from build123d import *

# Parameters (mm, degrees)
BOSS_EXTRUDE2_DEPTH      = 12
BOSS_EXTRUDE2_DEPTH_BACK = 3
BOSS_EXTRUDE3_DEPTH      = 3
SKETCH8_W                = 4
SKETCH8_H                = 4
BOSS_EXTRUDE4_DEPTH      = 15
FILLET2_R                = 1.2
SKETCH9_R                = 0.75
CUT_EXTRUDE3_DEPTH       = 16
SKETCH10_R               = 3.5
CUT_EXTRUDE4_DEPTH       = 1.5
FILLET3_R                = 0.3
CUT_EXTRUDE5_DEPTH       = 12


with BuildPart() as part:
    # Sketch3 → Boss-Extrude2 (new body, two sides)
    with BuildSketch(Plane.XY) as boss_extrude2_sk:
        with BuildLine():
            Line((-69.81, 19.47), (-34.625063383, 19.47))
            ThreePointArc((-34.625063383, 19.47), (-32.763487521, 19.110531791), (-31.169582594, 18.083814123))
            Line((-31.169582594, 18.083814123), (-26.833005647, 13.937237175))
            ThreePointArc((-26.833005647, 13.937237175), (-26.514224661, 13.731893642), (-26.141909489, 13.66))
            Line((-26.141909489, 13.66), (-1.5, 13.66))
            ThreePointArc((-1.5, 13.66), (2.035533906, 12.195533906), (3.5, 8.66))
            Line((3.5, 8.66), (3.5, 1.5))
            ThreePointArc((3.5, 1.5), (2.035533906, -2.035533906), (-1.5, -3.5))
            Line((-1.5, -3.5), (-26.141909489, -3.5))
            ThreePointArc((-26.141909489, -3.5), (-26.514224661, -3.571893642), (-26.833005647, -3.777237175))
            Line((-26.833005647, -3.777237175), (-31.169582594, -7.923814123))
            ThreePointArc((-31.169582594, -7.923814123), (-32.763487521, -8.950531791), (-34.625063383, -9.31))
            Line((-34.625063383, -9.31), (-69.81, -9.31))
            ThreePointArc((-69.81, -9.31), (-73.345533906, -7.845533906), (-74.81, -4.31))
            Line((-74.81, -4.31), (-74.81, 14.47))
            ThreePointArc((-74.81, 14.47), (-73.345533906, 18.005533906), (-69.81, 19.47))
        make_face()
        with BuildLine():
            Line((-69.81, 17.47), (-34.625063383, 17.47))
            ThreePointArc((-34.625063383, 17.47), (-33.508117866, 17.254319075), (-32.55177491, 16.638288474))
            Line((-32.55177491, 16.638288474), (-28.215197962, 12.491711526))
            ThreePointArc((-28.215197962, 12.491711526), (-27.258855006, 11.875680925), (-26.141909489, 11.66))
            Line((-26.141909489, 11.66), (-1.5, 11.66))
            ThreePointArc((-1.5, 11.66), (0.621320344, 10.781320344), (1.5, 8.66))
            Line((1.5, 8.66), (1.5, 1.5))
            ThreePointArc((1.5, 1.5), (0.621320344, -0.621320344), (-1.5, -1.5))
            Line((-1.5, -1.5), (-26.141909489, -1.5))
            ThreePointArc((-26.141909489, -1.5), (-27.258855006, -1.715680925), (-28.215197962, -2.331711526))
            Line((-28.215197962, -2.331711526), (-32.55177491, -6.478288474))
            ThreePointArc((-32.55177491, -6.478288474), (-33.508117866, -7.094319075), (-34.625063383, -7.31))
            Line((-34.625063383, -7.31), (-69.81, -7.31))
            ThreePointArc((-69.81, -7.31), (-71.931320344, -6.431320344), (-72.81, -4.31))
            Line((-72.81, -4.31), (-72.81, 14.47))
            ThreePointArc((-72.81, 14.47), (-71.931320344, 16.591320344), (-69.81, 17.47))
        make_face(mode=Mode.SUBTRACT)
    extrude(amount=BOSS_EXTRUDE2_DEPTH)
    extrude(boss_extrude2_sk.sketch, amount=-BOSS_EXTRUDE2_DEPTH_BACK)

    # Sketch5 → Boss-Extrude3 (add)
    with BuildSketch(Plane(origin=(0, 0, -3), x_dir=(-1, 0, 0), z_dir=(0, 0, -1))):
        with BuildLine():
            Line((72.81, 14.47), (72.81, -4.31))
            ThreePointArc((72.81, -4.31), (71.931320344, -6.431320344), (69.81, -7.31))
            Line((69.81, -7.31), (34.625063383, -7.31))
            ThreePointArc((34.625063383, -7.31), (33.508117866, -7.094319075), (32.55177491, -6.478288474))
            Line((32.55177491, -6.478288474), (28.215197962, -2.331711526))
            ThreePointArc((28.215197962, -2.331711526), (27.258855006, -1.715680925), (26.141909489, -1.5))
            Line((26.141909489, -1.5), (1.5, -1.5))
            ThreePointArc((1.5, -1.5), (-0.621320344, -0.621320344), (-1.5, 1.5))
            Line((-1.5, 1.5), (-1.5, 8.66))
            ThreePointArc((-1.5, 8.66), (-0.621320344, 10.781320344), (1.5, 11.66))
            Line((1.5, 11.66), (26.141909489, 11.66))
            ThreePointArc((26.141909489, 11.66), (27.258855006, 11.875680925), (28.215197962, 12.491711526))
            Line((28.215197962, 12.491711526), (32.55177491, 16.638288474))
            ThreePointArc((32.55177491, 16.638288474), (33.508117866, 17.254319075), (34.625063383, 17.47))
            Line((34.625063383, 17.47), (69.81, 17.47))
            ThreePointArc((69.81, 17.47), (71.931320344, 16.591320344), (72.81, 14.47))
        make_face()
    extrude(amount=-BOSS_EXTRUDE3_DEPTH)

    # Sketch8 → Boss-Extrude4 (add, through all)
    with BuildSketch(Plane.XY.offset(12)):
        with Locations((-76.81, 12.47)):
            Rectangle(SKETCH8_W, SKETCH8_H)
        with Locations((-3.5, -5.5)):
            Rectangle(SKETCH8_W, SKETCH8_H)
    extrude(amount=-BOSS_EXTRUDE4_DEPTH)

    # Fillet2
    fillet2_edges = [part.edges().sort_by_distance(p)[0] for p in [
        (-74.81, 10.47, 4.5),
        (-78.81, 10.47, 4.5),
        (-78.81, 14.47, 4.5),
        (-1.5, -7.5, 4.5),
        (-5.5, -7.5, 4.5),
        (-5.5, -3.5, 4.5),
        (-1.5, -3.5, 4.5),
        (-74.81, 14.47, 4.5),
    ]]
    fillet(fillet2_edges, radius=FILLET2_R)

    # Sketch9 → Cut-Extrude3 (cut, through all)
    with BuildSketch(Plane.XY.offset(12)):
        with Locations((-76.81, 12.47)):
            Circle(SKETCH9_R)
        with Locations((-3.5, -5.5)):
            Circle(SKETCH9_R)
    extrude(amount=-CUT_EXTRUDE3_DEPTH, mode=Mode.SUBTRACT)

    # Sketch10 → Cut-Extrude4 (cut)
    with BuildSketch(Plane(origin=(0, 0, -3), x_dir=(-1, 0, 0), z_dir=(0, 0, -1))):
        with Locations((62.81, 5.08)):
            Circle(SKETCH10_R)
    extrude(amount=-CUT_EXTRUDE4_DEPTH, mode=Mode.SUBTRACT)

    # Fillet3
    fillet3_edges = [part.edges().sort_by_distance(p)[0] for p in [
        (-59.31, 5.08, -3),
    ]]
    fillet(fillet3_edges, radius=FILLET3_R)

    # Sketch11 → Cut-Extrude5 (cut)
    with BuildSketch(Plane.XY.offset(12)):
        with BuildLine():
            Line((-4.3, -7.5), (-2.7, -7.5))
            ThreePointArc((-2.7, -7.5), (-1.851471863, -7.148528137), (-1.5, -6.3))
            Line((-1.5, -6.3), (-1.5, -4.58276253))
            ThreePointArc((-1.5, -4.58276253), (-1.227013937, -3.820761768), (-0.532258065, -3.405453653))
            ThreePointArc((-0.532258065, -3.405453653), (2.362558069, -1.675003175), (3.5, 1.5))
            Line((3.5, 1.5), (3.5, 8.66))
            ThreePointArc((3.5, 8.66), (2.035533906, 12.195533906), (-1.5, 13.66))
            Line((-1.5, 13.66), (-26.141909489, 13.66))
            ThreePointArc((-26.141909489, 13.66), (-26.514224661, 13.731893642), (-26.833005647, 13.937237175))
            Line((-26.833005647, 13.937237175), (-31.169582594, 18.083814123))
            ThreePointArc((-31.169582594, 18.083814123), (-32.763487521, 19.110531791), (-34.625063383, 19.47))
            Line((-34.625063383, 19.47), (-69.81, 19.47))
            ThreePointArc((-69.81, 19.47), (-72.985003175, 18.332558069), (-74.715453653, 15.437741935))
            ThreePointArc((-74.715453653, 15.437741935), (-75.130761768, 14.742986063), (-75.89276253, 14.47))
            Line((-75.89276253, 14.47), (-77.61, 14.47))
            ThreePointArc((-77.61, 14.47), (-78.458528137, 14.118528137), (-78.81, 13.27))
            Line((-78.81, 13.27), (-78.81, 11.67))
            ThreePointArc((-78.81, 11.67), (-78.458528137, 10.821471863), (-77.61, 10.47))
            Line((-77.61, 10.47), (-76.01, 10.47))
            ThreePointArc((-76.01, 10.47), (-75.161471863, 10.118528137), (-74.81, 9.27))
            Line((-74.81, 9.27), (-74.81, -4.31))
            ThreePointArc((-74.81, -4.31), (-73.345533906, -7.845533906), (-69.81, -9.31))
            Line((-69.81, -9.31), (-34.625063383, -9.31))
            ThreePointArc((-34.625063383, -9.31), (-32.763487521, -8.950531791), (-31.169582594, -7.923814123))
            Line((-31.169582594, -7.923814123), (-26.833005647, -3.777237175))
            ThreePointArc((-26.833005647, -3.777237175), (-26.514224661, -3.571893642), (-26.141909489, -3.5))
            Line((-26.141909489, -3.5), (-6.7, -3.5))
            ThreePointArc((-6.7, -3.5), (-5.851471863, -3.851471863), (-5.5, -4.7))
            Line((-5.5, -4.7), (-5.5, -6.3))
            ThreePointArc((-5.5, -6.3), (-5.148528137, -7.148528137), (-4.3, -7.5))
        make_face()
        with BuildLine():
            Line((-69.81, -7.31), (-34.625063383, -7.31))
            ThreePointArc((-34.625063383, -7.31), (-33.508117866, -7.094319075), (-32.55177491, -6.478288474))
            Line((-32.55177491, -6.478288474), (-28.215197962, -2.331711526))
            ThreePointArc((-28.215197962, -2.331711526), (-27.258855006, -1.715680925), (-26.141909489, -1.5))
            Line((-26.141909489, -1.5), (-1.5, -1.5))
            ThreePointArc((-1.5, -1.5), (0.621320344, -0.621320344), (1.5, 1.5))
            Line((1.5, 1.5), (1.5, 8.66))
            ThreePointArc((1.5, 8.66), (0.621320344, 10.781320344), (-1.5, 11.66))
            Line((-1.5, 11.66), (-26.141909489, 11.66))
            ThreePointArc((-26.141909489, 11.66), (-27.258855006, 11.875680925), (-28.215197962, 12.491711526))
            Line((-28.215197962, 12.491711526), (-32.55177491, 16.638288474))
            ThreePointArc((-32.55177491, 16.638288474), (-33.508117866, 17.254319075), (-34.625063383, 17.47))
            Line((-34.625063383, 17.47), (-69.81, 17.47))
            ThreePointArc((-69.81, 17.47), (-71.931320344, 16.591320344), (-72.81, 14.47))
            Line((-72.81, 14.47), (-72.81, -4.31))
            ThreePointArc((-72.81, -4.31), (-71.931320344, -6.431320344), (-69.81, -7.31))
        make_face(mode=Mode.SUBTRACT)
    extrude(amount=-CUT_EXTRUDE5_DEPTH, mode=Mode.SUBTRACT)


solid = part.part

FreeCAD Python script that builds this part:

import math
import FreeCAD as App
import Part
import Sketcher

V = App.Vector


def edges_at(feature, points):
    """Names of the edges that pass closest to the given points."""
    edges = feature.Shape.Edges
    near = lambda p: min(range(len(edges)), key=lambda i: edges[i].distToShape(Part.Vertex(*p))[0])
    return sorted({f"Edge{near(p) + 1}" for p in points})


def add_polygon(sketch, points):
    """Adds a closed chain of lines whose ends are joined by coincident constraints."""
    first, n = sketch.GeometryCount, len(points)
    for a, b in zip(points, points[1:] + points[:1]):
        sketch.addGeometry(Part.LineSegment(App.Vector(*a, 0), App.Vector(*b, 0)), False)
    for i in range(n):
        sketch.addConstraint(Sketcher.Constraint("Coincident", first + i, 2, first + (i + 1) % n, 1))

doc = App.newDocument("Part")
params = doc.addObject("Spreadsheet::Sheet", "Params")
for row, (alias, value) in enumerate([
    ("sketch1_radius", "5 mm"),
    ("sketch1_radius2", "1 mm"),
    ("sketch1_length", "6 mm"),
    ("sketch1_height", "18.78 mm"),
    ("sketch1_height2", "7.16 mm"),
    ("pad1_length", "12 mm"),
    ("pad1_length2", "3 mm"),
    ("sketch2_radius", "3 mm"),
    ("sketch2_length", "6 mm"),
    ("sketch2_height", "18.78 mm"),
    ("sketch2_height2", "7.16 mm"),
    ("pad2_length", "3 mm"),
    ("sketch3_width", "4 mm"),
    ("fillet_radius", "1.2 mm"),
    ("sketch4_diameter", "1.5 mm"),
    ("sketch5_diameter", "7 mm"),
    ("pocket2_length", "1.5 mm"),
    ("fillet2_radius", "0.3 mm"),
    ("sketch6_radius", "5 mm"),
    ("sketch6_radius2", "1 mm"),
    ("sketch6_radius3", "1.2 mm"),
    ("sketch6_length", "6 mm"),
    ("sketch6_width", "1.6 mm"),
    ("pocket3_length", "12 mm"),
], start=1):
    params.set(f"A{row}", alias)
    params.set(f"B{row}", "=" + value)
    params.setAlias(f"B{row}", alias)

body = doc.addObject("PartDesign::Body", "Body")

# Sketch on XY plane
sketch1 = body.newObject("Sketcher::SketchObject", "Sketch")
sketch1.AttachmentSupport = (doc.getObject("XY_Plane"), [""])
sketch1.MapMode = "FlatFace"
sketch1.addGeometry([
    Part.LineSegment(V(-34.6, 19.5, 0), V(-69.8, 19.5, 0)),  # 0
    Part.ArcOfCircle(Part.Circle(V(-69.8, 14.5, 0), V(0, 0, 1), 5), math.radians(90), math.radians(180)),  # 1
    Part.LineSegment(V(-74.8, 14.5, 0), V(-74.8, -4.3, 0)),  # 2
    Part.ArcOfCircle(Part.Circle(V(-69.8, -4.3, 0), V(0, 0, 1), 5), math.radians(180), math.radians(270)),  # 3
    Part.LineSegment(V(-69.8, -9.3, 0), V(-34.6, -9.3, 0)),  # 4
    Part.ArcOfCircle(Part.Circle(V(-34.6, -4.3, 0), V(0, 0, 1), 5), math.radians(-90), math.radians(-46)),  # 5
    Part.LineSegment(V(-31.2, -7.9, 0), V(-26.8, -3.8, 0)),  # 6
    Part.ArcOfCircle(Part.Circle(V(-26.1, -4.5, 0), V(0, 0, 1), 1), math.radians(90), math.radians(134)),  # 7
    Part.LineSegment(V(-26.1, -3.5, 0), V(-1.5, -3.5, 0)),  # 8
    Part.ArcOfCircle(Part.Circle(V(-1.5, 1.5, 0), V(0, 0, 1), 5), math.radians(-90), math.radians(0)),  # 9
    Part.LineSegment(V(3.5, 1.5, 0), V(3.5, 8.7, 0)),  # 10
    Part.ArcOfCircle(Part.Circle(V(-1.5, 8.7, 0), V(0, 0, 1), 5), math.radians(0), math.radians(90)),  # 11
    Part.LineSegment(V(-1.5, 13.7, 0), V(-26.1, 13.7, 0)),  # 12
    Part.ArcOfCircle(Part.Circle(V(-26.1, 14.7, 0), V(0, 0, 1), 1), math.radians(-134), math.radians(-90)),  # 13
    Part.LineSegment(V(-26.8, 13.9, 0), V(-31.2, 18.1, 0)),  # 14
    Part.ArcOfCircle(Part.Circle(V(-34.6, 14.5, 0), V(0, 0, 1), 5), math.radians(46), math.radians(90)),  # 15
    Part.LineSegment(V(-69.8, 17.5, 0), V(-34.6, 17.5, 0)),  # 16
    Part.ArcOfCircle(Part.Circle(V(-34.6, 14.5, 0), V(0, 0, 1), 3), math.radians(46), math.radians(90)),  # 17
    Part.LineSegment(V(-32.6, 16.6, 0), V(-28.2, 12.5, 0)),  # 18
    Part.ArcOfCircle(Part.Circle(V(-26.1, 14.7, 0), V(0, 0, 1), 3), math.radians(-134), math.radians(-90)),  # 19
    Part.LineSegment(V(-26.1, 11.7, 0), V(-1.5, 11.7, 0)),  # 20
    Part.ArcOfCircle(Part.Circle(V(-1.5, 8.7, 0), V(0, 0, 1), 3), math.radians(0), math.radians(90)),  # 21
    Part.LineSegment(V(1.5, 8.7, 0), V(1.5, 1.5, 0)),  # 22
    Part.ArcOfCircle(Part.Circle(V(-1.5, 1.5, 0), V(0, 0, 1), 3), math.radians(-90), math.radians(0)),  # 23
    Part.LineSegment(V(-1.5, -1.5, 0), V(-26.1, -1.5, 0)),  # 24
    Part.ArcOfCircle(Part.Circle(V(-26.1, -4.5, 0), V(0, 0, 1), 3), math.radians(90), math.radians(134)),  # 25
    Part.LineSegment(V(-28.2, -2.3, 0), V(-32.6, -6.5, 0)),  # 26
    Part.ArcOfCircle(Part.Circle(V(-34.6, -4.3, 0), V(0, 0, 1), 3), math.radians(-90), math.radians(-46)),  # 27
    Part.LineSegment(V(-34.6, -7.3, 0), V(-69.8, -7.3, 0)),  # 28
    Part.ArcOfCircle(Part.Circle(V(-69.8, -4.3, 0), V(0, 0, 1), 3), math.radians(180), math.radians(270)),  # 29
    Part.LineSegment(V(-72.8, -4.3, 0), V(-72.8, 14.5, 0)),  # 30
    Part.ArcOfCircle(Part.Circle(V(-69.8, 14.5, 0), V(0, 0, 1), 3), math.radians(90), math.radians(180)),  # 31
], False)
sketch1.addConstraint([
    Sketcher.Constraint("Tangent", 0, 2, 1, 1),
    Sketcher.Constraint("Tangent", 1, 2, 2, 1),
    Sketcher.Constraint("Tangent", 2, 2, 3, 1),
    Sketcher.Constraint("Tangent", 3, 2, 4, 1),
    Sketcher.Constraint("Tangent", 4, 2, 5, 1),
    Sketcher.Constraint("Tangent", 5, 2, 6, 1),
    Sketcher.Constraint("Tangent", 6, 2, 7, 2),
    Sketcher.Constraint("Tangent", 7, 1, 8, 1),
    Sketcher.Constraint("Tangent", 8, 2, 9, 1),
    Sketcher.Constraint("Tangent", 9, 2, 10, 1),
    Sketcher.Constraint("Tangent", 10, 2, 11, 1),
    Sketcher.Constraint("Tangent", 11, 2, 12, 1),
    Sketcher.Constraint("Tangent", 12, 2, 13, 2),
    Sketcher.Constraint("Tangent", 13, 1, 14, 1),
    Sketcher.Constraint("Tangent", 14, 2, 15, 1),
    Sketcher.Constraint("Tangent", 15, 2, 0, 1),
    Sketcher.Constraint("Tangent", 16, 2, 17, 2),
    Sketcher.Constraint("Tangent", 17, 1, 18, 1),
    Sketcher.Constraint("Tangent", 18, 2, 19, 1),
    Sketcher.Constraint("Tangent", 19, 2, 20, 1),
    Sketcher.Constraint("Tangent", 20, 2, 21, 2),
    Sketcher.Constraint("Tangent", 21, 1, 22, 1),
    Sketcher.Constraint("Tangent", 22, 2, 23, 2),
    Sketcher.Constraint("Tangent", 23, 1, 24, 1),
    Sketcher.Constraint("Tangent", 24, 2, 25, 1),
    Sketcher.Constraint("Tangent", 25, 2, 26, 1),
    Sketcher.Constraint("Tangent", 26, 2, 27, 2),
    Sketcher.Constraint("Tangent", 27, 1, 28, 1),
    Sketcher.Constraint("Tangent", 28, 2, 29, 2),
    Sketcher.Constraint("Tangent", 29, 1, 30, 1),
    Sketcher.Constraint("Tangent", 30, 2, 31, 2),
    Sketcher.Constraint("Tangent", 31, 1, 16, 1),
    Sketcher.Constraint("Horizontal", 0),
    Sketcher.Constraint("Vertical", 2),
    Sketcher.Constraint("Horizontal", 4),
    Sketcher.Constraint("Horizontal", 8),
    Sketcher.Constraint("Vertical", 10),
    Sketcher.Constraint("Horizontal", 12),
    Sketcher.Constraint("Horizontal", 16),
    Sketcher.Constraint("Horizontal", 20),
    Sketcher.Constraint("Vertical", 22),
    Sketcher.Constraint("Horizontal", 24),
    Sketcher.Constraint("Horizontal", 28),
    Sketcher.Constraint("Vertical", 30),
    Sketcher.Constraint("Coincident", 17, 3, 15, 3),
    Sketcher.Constraint("Coincident", 19, 3, 13, 3),
    Sketcher.Constraint("Coincident", 21, 3, 11, 3),
    Sketcher.Constraint("Coincident", 23, 3, 9, 3),
    Sketcher.Constraint("Coincident", 25, 3, 7, 3),
    Sketcher.Constraint("Coincident", 27, 3, 5, 3),
    Sketcher.Constraint("Coincident", 29, 3, 3, 3),
    Sketcher.Constraint("Coincident", 31, 3, 1, 3),
    Sketcher.Constraint("Equal", 1, 3),
    Sketcher.Constraint("Equal", 3, 5),
    Sketcher.Constraint("Equal", 5, 9),
    Sketcher.Constraint("Equal", 9, 11),
    Sketcher.Constraint("Equal", 7, 13),
    Sketcher.Constraint("Equal", 11, 15),
    Sketcher.Constraint("Equal", 17, 19),
    Sketcher.Constraint("Equal", 19, 21),
    Sketcher.Constraint("Symmetric", 22, 2, 23, 1, -1, 1),
    Sketcher.Constraint("Vertical", 7, 3, 13, 3),
    Sketcher.Constraint("Vertical", 5, 3, 15, 3),
    Sketcher.Constraint("Vertical", 6, 2, 13, 1),
    Sketcher.Constraint("Radius", 1, 5.0),
    Sketcher.Constraint("Radius", 7, 1.0),
    Sketcher.Constraint("Distance", 6, 6.0),
    Sketcher.Constraint("DistanceY", 2, 2, 2, 1, 18.78),
    Sketcher.Constraint("DistanceY", 10, 1, 10, 2, 7.16),
    Sketcher.Constraint("DistanceX", 1, 3, -1, 1, 69.81),
    Sketcher.Constraint("DistanceX", 8, 1, 8, 2, 24.641909),
])
sketch1.setExpression("Constraints[64]", "Params.sketch1_radius")
sketch1.setExpression("Constraints[65]", "Params.sketch1_radius2")
sketch1.setExpression("Constraints[66]", "Params.sketch1_length")
sketch1.setExpression("Constraints[67]", "Params.sketch1_height")
sketch1.setExpression("Constraints[68]", "Params.sketch1_height2")
pad1 = body.newObject("PartDesign::Pad", "Pad")
pad1.Profile = sketch1
pad1.Type = "TwoLengths"
pad1.setExpression("Length", "Params.pad1_length")
pad1.setExpression("Length2", "Params.pad1_length2")

# Sketch on XY plane
sketch2 = body.newObject("Sketcher::SketchObject", "Sketch001")
sketch2.AttachmentSupport = (doc.getObject("XY_Plane"), [""])
sketch2.MapMode = "FlatFace"
sketch2.AttachmentOffset = App.Placement(V(0, 0, -3), App.Rotation())
sketch2.addGeometry([
    Part.LineSegment(V(-72.8, -4.3, 0), V(-72.8, 14.5, 0)),  # 0
    Part.ArcOfCircle(Part.Circle(V(-69.8, 14.5, 0), V(0, 0, 1), 3), math.radians(90), math.radians(180)),  # 1
    Part.LineSegment(V(-69.8, 17.5, 0), V(-34.6, 17.5, 0)),  # 2
    Part.ArcOfCircle(Part.Circle(V(-34.6, 14.5, 0), V(0, 0, 1), 3), math.radians(46), math.radians(90)),  # 3
    Part.LineSegment(V(-32.6, 16.6, 0), V(-28.2, 12.5, 0)),  # 4
    Part.ArcOfCircle(Part.Circle(V(-26.1, 14.7, 0), V(0, 0, 1), 3), math.radians(-134), math.radians(-90)),  # 5
    Part.LineSegment(V(-26.1, 11.7, 0), V(-1.5, 11.7, 0)),  # 6
    Part.ArcOfCircle(Part.Circle(V(-1.5, 8.7, 0), V(0, 0, 1), 3), math.radians(0), math.radians(90)),  # 7
    Part.LineSegment(V(1.5, 8.7, 0), V(1.5, 1.5, 0)),  # 8
    Part.ArcOfCircle(Part.Circle(V(-1.5, 1.5, 0), V(0, 0, 1), 3), math.radians(-90), math.radians(0)),  # 9
    Part.LineSegment(V(-1.5, -1.5, 0), V(-26.1, -1.5, 0)),  # 10
    Part.ArcOfCircle(Part.Circle(V(-26.1, -4.5, 0), V(0, 0, 1), 3), math.radians(90), math.radians(134)),  # 11
    Part.LineSegment(V(-28.2, -2.3, 0), V(-32.6, -6.5, 0)),  # 12
    Part.ArcOfCircle(Part.Circle(V(-34.6, -4.3, 0), V(0, 0, 1), 3), math.radians(-90), math.radians(-46)),  # 13
    Part.LineSegment(V(-34.6, -7.3, 0), V(-69.8, -7.3, 0)),  # 14
    Part.ArcOfCircle(Part.Circle(V(-69.8, -4.3, 0), V(0, 0, 1), 3), math.radians(180), math.radians(270)),  # 15
], False)
sketch2.addConstraint([
    Sketcher.Constraint("Tangent", 0, 2, 1, 2),
    Sketcher.Constraint("Tangent", 1, 1, 2, 1),
    Sketcher.Constraint("Tangent", 2, 2, 3, 2),
    Sketcher.Constraint("Tangent", 3, 1, 4, 1),
    Sketcher.Constraint("Tangent", 4, 2, 5, 1),
    Sketcher.Constraint("Tangent", 5, 2, 6, 1),
    Sketcher.Constraint("Tangent", 6, 2, 7, 2),
    Sketcher.Constraint("Tangent", 7, 1, 8, 1),
    Sketcher.Constraint("Tangent", 8, 2, 9, 2),
    Sketcher.Constraint("Tangent", 9, 1, 10, 1),
    Sketcher.Constraint("Tangent", 10, 2, 11, 1),
    Sketcher.Constraint("Tangent", 11, 2, 12, 1),
    Sketcher.Constraint("Tangent", 12, 2, 13, 2),
    Sketcher.Constraint("Tangent", 13, 1, 14, 1),
    Sketcher.Constraint("Tangent", 14, 2, 15, 2),
    Sketcher.Constraint("Tangent", 15, 1, 0, 1),
    Sketcher.Constraint("Vertical", 0),
    Sketcher.Constraint("Horizontal", 2),
    Sketcher.Constraint("Horizontal", 6),
    Sketcher.Constraint("Vertical", 8),
    Sketcher.Constraint("Horizontal", 10),
    Sketcher.Constraint("Horizontal", 14),
    Sketcher.Constraint("Equal", 1, 3),
    Sketcher.Constraint("Equal", 3, 5),
    Sketcher.Constraint("Equal", 5, 7),
    Sketcher.Constraint("Equal", 7, 9),
    Sketcher.Constraint("Equal", 9, 11),
    Sketcher.Constraint("Equal", 11, 13),
    Sketcher.Constraint("Equal", 13, 15),
    Sketcher.Constraint("Symmetric", 8, 2, 9, 1, -1, 1),
    Sketcher.Constraint("Vertical", 5, 3, 11, 3),
    Sketcher.Constraint("Vertical", 3, 3, 13, 3),
    Sketcher.Constraint("Vertical", 4, 2, 11, 2),
    Sketcher.Constraint("Radius", 1, 3.0),
    Sketcher.Constraint("Distance", 4, 6.0),
    Sketcher.Constraint("DistanceY", 0, 1, 0, 2, 18.78),
    Sketcher.Constraint("DistanceY", 8, 2, 8, 1, 7.16),
    Sketcher.Constraint("DistanceX", 1, 3, -1, 1, 69.81),
    Sketcher.Constraint("DistanceX", 6, 1, 6, 2, 24.641909),
])
sketch2.setExpression("Constraints[33]", "Params.sketch2_radius")
sketch2.setExpression("Constraints[34]", "Params.sketch2_length")
sketch2.setExpression("Constraints[35]", "Params.sketch2_height")
sketch2.setExpression("Constraints[36]", "Params.sketch2_height2")
pad2 = body.newObject("PartDesign::Pad", "Pad001")
pad2.Profile = sketch2
pad2.setExpression("Length", "Params.pad2_length")

# Sketch on XY plane
sketch3 = body.newObject("Sketcher::SketchObject", "Sketch002")
sketch3.AttachmentSupport = (doc.getObject("XY_Plane"), [""])
sketch3.MapMode = "FlatFace"
sketch3.AttachmentOffset = App.Placement(V(0, 0, 12), App.Rotation())
add_polygon(sketch3, [(-78.8, 14.5), (-78.8, 10.5), (-74.8, 10.5), (-74.8, 14.5)])  # lines 0-3
add_polygon(sketch3, [(-5.5, -3.5), (-5.5, -7.5), (-1.5, -7.5), (-1.5, -3.5)])  # lines 4-7
sketch3.addConstraint([
    Sketcher.Constraint("Vertical", 0),
    Sketcher.Constraint("Horizontal", 1),
    Sketcher.Constraint("Vertical", 2),
    Sketcher.Constraint("Horizontal", 3),
    Sketcher.Constraint("Vertical", 4),
    Sketcher.Constraint("Horizontal", 5),
    Sketcher.Constraint("Vertical", 6),
    Sketcher.Constraint("Horizontal", 7),
    Sketcher.Constraint("Equal", 3, 5),
    Sketcher.Constraint("Equal", 7, 0),
    Sketcher.Constraint("Equal", 2, 4),
    Sketcher.Constraint("DistanceX", 1, 1, 1, 2, 4.0),
    Sketcher.Constraint("DistanceX", 4, 2, -1, 1, 5.5),
    Sketcher.Constraint("DistanceY", 4, 2, -1, 1, 7.5),
    Sketcher.Constraint("DistanceX", 0, 2, -1, 1, 78.81),
    Sketcher.Constraint("DistanceY", -1, 1, 0, 2, 10.47),
])
sketch3.setExpression("Constraints[19]", "Params.sketch3_width")
pad3 = body.newObject("PartDesign::Pad", "Pad002")
pad3.Profile = sketch3
pad3.Type = "UpToLast"
pad3.Reversed = True
doc.recompute()

fillet = body.newObject("PartDesign::Fillet", "Fillet")
fillet.Base = (pad3, edges_at(pad3, [
    (-74.81, 10.47, 4.5),
    (-78.81, 10.47, 4.5),
    (-78.81, 14.47, 4.5),
    (-1.5, -7.5, 4.5),
    (-5.5, -7.5, 4.5),
    (-5.5, -3.5, 4.5),
    (-1.5, -3.5, 4.5),
    (-74.81, 14.47, 4.5),
]))
fillet.setExpression("Radius", "Params.fillet_radius")

# Sketch on XY plane
sketch4 = body.newObject("Sketcher::SketchObject", "Sketch003")
sketch4.AttachmentSupport = (doc.getObject("XY_Plane"), [""])
sketch4.MapMode = "FlatFace"
sketch4.AttachmentOffset = App.Placement(V(0, 0, 12), App.Rotation())
sketch4.addGeometry([
    Part.Circle(V(-76.8, 12.5, 0), V(0, 0, 1), 0.8),
    Part.Circle(V(-3.5, -5.5, 0), V(0, 0, 1), 0.8),
], False)
sketch4.addConstraint([
    Sketcher.Constraint("Equal", 0, 1),
    Sketcher.Constraint("Diameter", 0, 1.5),
    Sketcher.Constraint("DistanceX", 1, 3, -1, 1, 3.5),
    Sketcher.Constraint("DistanceY", 1, 3, -1, 1, 5.5),
    Sketcher.Constraint("DistanceX", 0, 3, -1, 1, 76.81),
    Sketcher.Constraint("DistanceY", -1, 1, 0, 3, 12.47),
])
sketch4.setExpression("Constraints[1]", "Params.sketch4_diameter")
pocket1 = body.newObject("PartDesign::Pocket", "Pocket")
pocket1.Profile = sketch4
pocket1.Type = "ThroughAll"

# Sketch on XY plane
sketch5 = body.newObject("Sketcher::SketchObject", "Sketch004")
sketch5.AttachmentSupport = (doc.getObject("XY_Plane"), [""])
sketch5.MapMode = "FlatFace"
sketch5.AttachmentOffset = App.Placement(V(0, 0, -3), App.Rotation())
sketch5.addGeometry(Part.Circle(V(-62.8, 5.1, 0), V(0, 0, 1), 3.5), False)
sketch5.addConstraint([
    Sketcher.Constraint("Diameter", 0, 7.0),
    Sketcher.Constraint("DistanceX", 0, 3, -1, 1, 62.81),
    Sketcher.Constraint("DistanceY", -1, 1, 0, 3, 5.08),
])
sketch5.setExpression("Constraints[0]", "Params.sketch5_diameter")
pocket2 = body.newObject("PartDesign::Pocket", "Pocket001")
pocket2.Profile = sketch5
pocket2.setExpression("Length", "Params.pocket2_length")
pocket2.Reversed = True
doc.recompute()

fillet2 = body.newObject("PartDesign::Fillet", "Fillet001")
fillet2.Base = (pocket2, edges_at(pocket2, [(-59.31, 5.08, -3)]))
fillet2.setExpression("Radius", "Params.fillet2_radius")

# Sketch on XY plane
sketch6 = body.newObject("Sketcher::SketchObject", "Sketch005")
sketch6.AttachmentSupport = (doc.getObject("XY_Plane"), [""])
sketch6.MapMode = "FlatFace"
sketch6.AttachmentOffset = App.Placement(V(0, 0, 12), App.Rotation())
sketch6.addGeometry([
    Part.LineSegment(V(-4.3, -7.5, 0), V(-2.7, -7.5, 0)),  # 0
    Part.ArcOfCircle(Part.Circle(V(-2.7, -6.3, 0), V(0, 0, 1), 1.2), math.radians(-90), math.radians(0)),  # 1
    Part.LineSegment(V(-1.5, -6.3, 0), V(-1.5, -4.6, 0)),  # 2
    Part.ArcOfCircle(Part.Circle(V(-0.3, -4.6, 0), V(0, 0, 1), 1.2), math.radians(101), math.radians(180)),  # 3
    Part.ArcOfCircle(Part.Circle(V(-1.5, 1.5, 0), V(0, 0, 1), 5), math.radians(-79), math.radians(0)),  # 4
    Part.LineSegment(V(3.5, 1.5, 0), V(3.5, 8.7, 0)),  # 5
    Part.ArcOfCircle(Part.Circle(V(-1.5, 8.7, 0), V(0, 0, 1), 5), math.radians(0), math.radians(90)),  # 6
    Part.LineSegment(V(-1.5, 13.7, 0), V(-26.1, 13.7, 0)),  # 7
    Part.ArcOfCircle(Part.Circle(V(-26.1, 14.7, 0), V(0, 0, 1), 1), math.radians(-134), math.radians(-90)),  # 8
    Part.LineSegment(V(-26.8, 13.9, 0), V(-31.2, 18.1, 0)),  # 9
    Part.ArcOfCircle(Part.Circle(V(-34.6, 14.5, 0), V(0, 0, 1), 5), math.radians(46), math.radians(90)),  # 10
    Part.LineSegment(V(-34.6, 19.5, 0), V(-69.8, 19.5, 0)),  # 11
    Part.ArcOfCircle(Part.Circle(V(-69.8, 14.5, 0), V(0, 0, 1), 5), math.radians(90), math.radians(169)),  # 12
    Part.ArcOfCircle(Part.Circle(V(-75.9, 15.7, 0), V(0, 0, 1), 1.2), math.radians(-90), math.radians(-11)),  # 13
    Part.LineSegment(V(-75.9, 14.5, 0), V(-77.6, 14.5, 0)),  # 14
    Part.ArcOfCircle(Part.Circle(V(-77.6, 13.3, 0), V(0, 0, 1), 1.2), math.radians(90), math.radians(180)),  # 15
    Part.LineSegment(V(-78.8, 13.3, 0), V(-78.8, 11.7, 0)),  # 16
    Part.ArcOfCircle(Part.Circle(V(-77.6, 11.7, 0), V(0, 0, 1), 1.2), math.radians(-180), math.radians(-90)),  # 17
    Part.LineSegment(V(-77.6, 10.5, 0), V(-76, 10.5, 0)),  # 18
    Part.ArcOfCircle(Part.Circle(V(-76, 9.3, 0), V(0, 0, 1), 1.2), math.radians(0), math.radians(90)),  # 19
    Part.LineSegment(V(-74.8, 9.3, 0), V(-74.8, -4.3, 0)),  # 20
    Part.ArcOfCircle(Part.Circle(V(-69.8, -4.3, 0), V(0, 0, 1), 5), math.radians(180), math.radians(270)),  # 21
    Part.LineSegment(V(-69.8, -9.3, 0), V(-34.6, -9.3, 0)),  # 22
    Part.ArcOfCircle(Part.Circle(V(-34.6, -4.3, 0), V(0, 0, 1), 5), math.radians(-90), math.radians(-46)),  # 23
    Part.LineSegment(V(-31.2, -7.9, 0), V(-26.8, -3.8, 0)),  # 24
    Part.ArcOfCircle(Part.Circle(V(-26.1, -4.5, 0), V(0, 0, 1), 1), math.radians(90), math.radians(134)),  # 25
    Part.LineSegment(V(-26.1, -3.5, 0), V(-6.7, -3.5, 0)),  # 26
    Part.ArcOfCircle(Part.Circle(V(-6.7, -4.7, 0), V(0, 0, 1), 1.2), math.radians(0), math.radians(90)),  # 27
    Part.LineSegment(V(-5.5, -4.7, 0), V(-5.5, -6.3, 0)),  # 28
    Part.ArcOfCircle(Part.Circle(V(-4.3, -6.3, 0), V(0, 0, 1), 1.2), math.radians(-180), math.radians(-90)),  # 29
    Part.LineSegment(V(-34.6, -7.3, 0), V(-69.8, -7.3, 0)),  # 30
    Part.ArcOfCircle(Part.Circle(V(-69.8, -4.3, 0), V(0, 0, 1), 3), math.radians(180), math.radians(270)),  # 31
    Part.LineSegment(V(-72.8, -4.3, 0), V(-72.8, 14.5, 0)),  # 32
    Part.ArcOfCircle(Part.Circle(V(-69.8, 14.5, 0), V(0, 0, 1), 3), math.radians(90), math.radians(180)),  # 33
    Part.LineSegment(V(-69.8, 17.5, 0), V(-34.6, 17.5, 0)),  # 34
    Part.ArcOfCircle(Part.Circle(V(-34.6, 14.5, 0), V(0, 0, 1), 3), math.radians(46), math.radians(90)),  # 35
    Part.LineSegment(V(-32.6, 16.6, 0), V(-28.2, 12.5, 0)),  # 36
    Part.ArcOfCircle(Part.Circle(V(-26.1, 14.7, 0), V(0, 0, 1), 3), math.radians(-134), math.radians(-90)),  # 37
    Part.LineSegment(V(-26.1, 11.7, 0), V(-1.5, 11.7, 0)),  # 38
    Part.ArcOfCircle(Part.Circle(V(-1.5, 8.7, 0), V(0, 0, 1), 3), math.radians(0), math.radians(90)),  # 39
    Part.LineSegment(V(1.5, 8.7, 0), V(1.5, 1.5, 0)),  # 40
    Part.ArcOfCircle(Part.Circle(V(-1.5, 1.5, 0), V(0, 0, 1), 3), math.radians(-90), math.radians(0)),  # 41
    Part.LineSegment(V(-1.5, -1.5, 0), V(-26.1, -1.5, 0)),  # 42
    Part.ArcOfCircle(Part.Circle(V(-26.1, -4.5, 0), V(0, 0, 1), 3), math.radians(90), math.radians(134)),  # 43
    Part.LineSegment(V(-28.2, -2.3, 0), V(-32.6, -6.5, 0)),  # 44
    Part.ArcOfCircle(Part.Circle(V(-34.6, -4.3, 0), V(0, 0, 1), 3), math.radians(-90), math.radians(-46)),  # 45
], False)
sketch6.addConstraint([
    Sketcher.Constraint("Tangent", 0, 2, 1, 1),
    Sketcher.Constraint("Tangent", 1, 2, 2, 1),
    Sketcher.Constraint("Tangent", 2, 2, 3, 2),
    Sketcher.Constraint("Tangent", 3, 1, 4, 1),
    Sketcher.Constraint("Tangent", 4, 2, 5, 1),
    Sketcher.Constraint("Tangent", 5, 2, 6, 1),
    Sketcher.Constraint("Tangent", 6, 2, 7, 1),
    Sketcher.Constraint("Tangent", 7, 2, 8, 2),
    Sketcher.Constraint("Tangent", 8, 1, 9, 1),
    Sketcher.Constraint("Tangent", 9, 2, 10, 1),
    Sketcher.Constraint("Tangent", 10, 2, 11, 1),
    Sketcher.Constraint("Tangent", 11, 2, 12, 1),
    Sketcher.Constraint("Tangent", 12, 2, 13, 2),
    Sketcher.Constraint("Tangent", 13, 1, 14, 1),
    Sketcher.Constraint("Tangent", 14, 2, 15, 1),
    Sketcher.Constraint("Tangent", 15, 2, 16, 1),
    Sketcher.Constraint("Tangent", 16, 2, 17, 1),
    Sketcher.Constraint("Tangent", 17, 2, 18, 1),
    Sketcher.Constraint("Tangent", 18, 2, 19, 2),
    Sketcher.Constraint("Tangent", 19, 1, 20, 1),
    Sketcher.Constraint("Tangent", 20, 2, 21, 1),
    Sketcher.Constraint("Tangent", 21, 2, 22, 1),
    Sketcher.Constraint("Tangent", 22, 2, 23, 1),
    Sketcher.Constraint("Tangent", 23, 2, 24, 1),
    Sketcher.Constraint("Tangent", 24, 2, 25, 2),
    Sketcher.Constraint("Tangent", 25, 1, 26, 1),
    Sketcher.Constraint("Tangent", 26, 2, 27, 2),
    Sketcher.Constraint("Tangent", 27, 1, 28, 1),
    Sketcher.Constraint("Tangent", 28, 2, 29, 1),
    Sketcher.Constraint("Tangent", 29, 2, 0, 1),
    Sketcher.Constraint("Tangent", 30, 2, 31, 2),
    Sketcher.Constraint("Tangent", 31, 1, 32, 1),
    Sketcher.Constraint("Tangent", 32, 2, 33, 2),
    Sketcher.Constraint("Tangent", 33, 1, 34, 1),
    Sketcher.Constraint("Tangent", 34, 2, 35, 2),
    Sketcher.Constraint("Tangent", 35, 1, 36, 1),
    Sketcher.Constraint("Tangent", 36, 2, 37, 1),
    Sketcher.Constraint("Tangent", 37, 2, 38, 1),
    Sketcher.Constraint("Tangent", 38, 2, 39, 2),
    Sketcher.Constraint("Tangent", 39, 1, 40, 1),
    Sketcher.Constraint("Tangent", 40, 2, 41, 2),
    Sketcher.Constraint("Tangent", 41, 1, 42, 1),
    Sketcher.Constraint("Tangent", 42, 2, 43, 1),
    Sketcher.Constraint("Tangent", 43, 2, 44, 1),
    Sketcher.Constraint("Tangent", 44, 2, 45, 2),
    Sketcher.Constraint("Tangent", 45, 1, 30, 1),
    Sketcher.Constraint("Horizontal", 0),
    Sketcher.Constraint("Vertical", 2),
    Sketcher.Constraint("Vertical", 5),
    Sketcher.Constraint("Horizontal", 7),
    Sketcher.Constraint("Horizontal", 11),
    Sketcher.Constraint("Horizontal", 14),
    Sketcher.Constraint("Vertical", 16),
    Sketcher.Constraint("Horizontal", 18),
    Sketcher.Constraint("Vertical", 20),
    Sketcher.Constraint("Horizontal", 22),
    Sketcher.Constraint("Horizontal", 26),
    Sketcher.Constraint("Vertical", 28),
    Sketcher.Constraint("Horizontal", 30),
    Sketcher.Constraint("Vertical", 32),
    Sketcher.Constraint("Horizontal", 34),
    Sketcher.Constraint("Horizontal", 38),
    Sketcher.Constraint("Vertical", 40),
    Sketcher.Constraint("Horizontal", 42),
    Sketcher.Constraint("Coincident", 31, 3, 21, 3),
    Sketcher.Constraint("Coincident", 33, 3, 12, 3),
    Sketcher.Constraint("Coincident", 35, 3, 10, 3),
    Sketcher.Constraint("Coincident", 37, 3, 8, 3),
    Sketcher.Constraint("Coincident", 39, 3, 6, 3),
    Sketcher.Constraint("Coincident", 41, 3, 4, 3),
    Sketcher.Constraint("Coincident", 43, 3, 25, 3),
    Sketcher.Constraint("Coincident", 45, 3, 23, 3),
    Sketcher.Constraint("Equal", 1, 3),
    Sketcher.Constraint("Equal", 4, 6),
    Sketcher.Constraint("Equal", 6, 10),
    Sketcher.Constraint("Equal", 10, 12),
    Sketcher.Constraint("Equal", 3, 13),
    Sketcher.Constraint("Equal", 13, 15),
    Sketcher.Constraint("Equal", 15, 17),
    Sketcher.Constraint("Equal", 17, 19),
    Sketcher.Constraint("Equal", 12, 21),
    Sketcher.Constraint("Equal", 21, 23),
    Sketcher.Constraint("Equal", 8, 25),
    Sketcher.Constraint("Equal", 19, 27),
    Sketcher.Constraint("Equal", 27, 29),
    Sketcher.Constraint("Equal", 31, 33),
    Sketcher.Constraint("Equal", 35, 37),
    Sketcher.Constraint("Equal", 37, 39),
    Sketcher.Constraint("Equal", 41, 43),
    Sketcher.Constraint("Symmetric", 40, 2, 41, 1, -1, 1),
    Sketcher.Constraint("Horizontal", 35, 3, 13, 1),
    Sketcher.Constraint("Vertical", 10, 3, 23, 3),
    Sketcher.Constraint("Vertical", 8, 3, 25, 3),
    Sketcher.Constraint("Vertical", 41, 3, 1, 2),
    Sketcher.Constraint("Vertical", 9, 2, 23, 2),
    Sketcher.Constraint("Equal", 0, 18),
    Sketcher.Constraint("Equal", 14, 2),
    Sketcher.Constraint("Equal", 18, 16),
    Sketcher.Constraint("Radius", 4, 5.0),
    Sketcher.Constraint("Radius", 8, 1.0),
    Sketcher.Constraint("Radius", 1, 1.2),
    Sketcher.Constraint("Distance", 9, 6.0),
    Sketcher.Constraint("DistanceX", 0, 1, 0, 2, 1.6),
    Sketcher.Constraint("DistanceY", 5, 1, 5, 2, 7.16),
    Sketcher.Constraint("DistanceY", 20, 2, 20, 1, 13.58),
    Sketcher.Constraint("DistanceX", 12, 3, -1, 1, 69.81),
    Sketcher.Constraint("DistanceX", 7, 2, 7, 1, 24.641909),
])
sketch6.setExpression("Constraints[98]", "Params.sketch6_radius")
sketch6.setExpression("Constraints[99]", "Params.sketch6_radius2")
sketch6.setExpression("Constraints[100]", "Params.sketch6_radius3")
sketch6.setExpression("Constraints[101]", "Params.sketch6_length")
sketch6.setExpression("Constraints[102]", "Params.sketch6_width")
pocket3 = body.newObject("PartDesign::Pocket", "Pocket002")
pocket3.Profile = sketch6
pocket3.setExpression("Length", "Params.pocket3_length")

doc.recompute()
